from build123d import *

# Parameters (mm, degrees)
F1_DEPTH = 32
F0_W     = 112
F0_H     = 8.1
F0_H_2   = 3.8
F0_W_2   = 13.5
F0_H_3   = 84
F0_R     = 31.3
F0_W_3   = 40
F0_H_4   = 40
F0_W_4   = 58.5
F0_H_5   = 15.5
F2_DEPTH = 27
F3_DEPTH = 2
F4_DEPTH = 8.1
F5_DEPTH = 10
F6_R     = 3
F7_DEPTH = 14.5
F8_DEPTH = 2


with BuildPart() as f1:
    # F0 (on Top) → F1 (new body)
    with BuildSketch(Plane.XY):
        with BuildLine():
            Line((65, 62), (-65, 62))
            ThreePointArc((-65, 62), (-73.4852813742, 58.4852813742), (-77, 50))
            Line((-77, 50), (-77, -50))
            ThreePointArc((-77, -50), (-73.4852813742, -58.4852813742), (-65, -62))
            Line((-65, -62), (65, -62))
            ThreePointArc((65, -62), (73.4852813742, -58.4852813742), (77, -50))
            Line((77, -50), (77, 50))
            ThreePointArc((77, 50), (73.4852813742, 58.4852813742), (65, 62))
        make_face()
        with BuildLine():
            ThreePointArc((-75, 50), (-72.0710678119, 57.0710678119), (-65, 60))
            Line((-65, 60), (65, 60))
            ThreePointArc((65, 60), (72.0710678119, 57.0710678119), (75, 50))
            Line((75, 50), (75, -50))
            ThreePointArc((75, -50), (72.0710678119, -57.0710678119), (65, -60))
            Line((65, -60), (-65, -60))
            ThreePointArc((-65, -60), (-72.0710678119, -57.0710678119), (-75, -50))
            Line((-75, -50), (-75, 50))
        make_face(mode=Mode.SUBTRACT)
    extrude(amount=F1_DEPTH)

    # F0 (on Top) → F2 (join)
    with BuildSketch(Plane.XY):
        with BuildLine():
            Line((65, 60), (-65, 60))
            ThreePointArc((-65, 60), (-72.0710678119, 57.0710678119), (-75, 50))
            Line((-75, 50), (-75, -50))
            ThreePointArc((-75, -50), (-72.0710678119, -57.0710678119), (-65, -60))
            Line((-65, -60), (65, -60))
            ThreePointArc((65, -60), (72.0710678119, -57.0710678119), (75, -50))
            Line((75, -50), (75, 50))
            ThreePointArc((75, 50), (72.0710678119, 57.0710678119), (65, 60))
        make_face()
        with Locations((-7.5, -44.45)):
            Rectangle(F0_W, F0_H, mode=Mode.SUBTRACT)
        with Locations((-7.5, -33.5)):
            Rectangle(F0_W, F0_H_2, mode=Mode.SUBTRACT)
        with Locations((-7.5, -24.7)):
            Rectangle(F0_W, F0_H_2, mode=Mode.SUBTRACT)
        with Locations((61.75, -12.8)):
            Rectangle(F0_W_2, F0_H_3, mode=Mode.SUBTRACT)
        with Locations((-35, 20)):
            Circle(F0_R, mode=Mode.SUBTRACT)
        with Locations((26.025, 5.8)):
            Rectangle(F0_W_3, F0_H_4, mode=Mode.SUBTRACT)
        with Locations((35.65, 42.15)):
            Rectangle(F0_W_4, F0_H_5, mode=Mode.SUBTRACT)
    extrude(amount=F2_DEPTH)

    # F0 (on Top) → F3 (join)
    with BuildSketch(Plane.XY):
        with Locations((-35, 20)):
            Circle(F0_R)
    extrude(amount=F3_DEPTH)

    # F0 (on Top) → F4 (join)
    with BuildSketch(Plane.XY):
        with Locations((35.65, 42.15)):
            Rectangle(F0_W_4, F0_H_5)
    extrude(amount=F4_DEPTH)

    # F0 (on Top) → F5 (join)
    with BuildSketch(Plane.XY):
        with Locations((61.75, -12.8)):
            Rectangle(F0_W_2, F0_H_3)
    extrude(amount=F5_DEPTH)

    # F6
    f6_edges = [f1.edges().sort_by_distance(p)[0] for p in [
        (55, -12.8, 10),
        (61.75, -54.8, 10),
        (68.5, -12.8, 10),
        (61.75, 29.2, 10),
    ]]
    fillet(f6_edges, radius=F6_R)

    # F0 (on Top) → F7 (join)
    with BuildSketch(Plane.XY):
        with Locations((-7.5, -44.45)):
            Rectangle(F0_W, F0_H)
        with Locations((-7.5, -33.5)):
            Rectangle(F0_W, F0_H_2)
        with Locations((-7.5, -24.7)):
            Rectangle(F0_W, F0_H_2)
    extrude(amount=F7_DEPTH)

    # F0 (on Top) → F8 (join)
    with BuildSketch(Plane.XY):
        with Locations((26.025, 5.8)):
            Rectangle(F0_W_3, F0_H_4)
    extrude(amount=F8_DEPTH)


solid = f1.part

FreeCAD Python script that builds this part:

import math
import FreeCAD as App
import Part
import Sketcher
Q = App.Units.Quantity


def edges_at(feature, points):
    """Names of the edges that pass closest to the given points."""
    edges = feature.Shape.Edges
    near = lambda p: min(range(len(edges)), key=lambda i: edges[i].distToShape(Part.Vertex(*p))[0])
    return sorted({f"Edge{near(p) + 1}" for p in points})

doc = App.newDocument("Part")
body = doc.addObject("PartDesign::Body", "Body")

sketch1 = body.newObject("Sketcher::SketchObject", "Sketch")
sketch1.AttachmentSupport = (doc.getObject("XY_Plane"), [""])
sketch1.MapMode = "FlatFace"
sketch1.addGeometry([
    Part.LineSegment(App.Vector(65, 62, 0), App.Vector(-65, 62, 0)),
    Part.ArcOfCircle(Part.Circle(App.Vector(-65, 50, 0), App.Vector(0, 0, 1), 12), math.radians(90), math.radians(180)),
    Part.LineSegment(App.Vector(-77, 50, 0), App.Vector(-77, -50, 0)),
    Part.ArcOfCircle(Part.Circle(App.Vector(-65, -50, 0), App.Vector(0, 0, 1), 12), math.radians(180), math.radians(270)),
    Part.LineSegment(App.Vector(-65, -62, 0), App.Vector(65, -62, 0)),
    Part.ArcOfCircle(Part.Circle(App.Vector(65, -50, 0), App.Vector(0, 0, 1), 12), math.radians(-90), math.radians(0)),
    Part.LineSegment(App.Vector(77, -50, 0), App.Vector(77, 50, 0)),
    Part.ArcOfCircle(Part.Circle(App.Vector(65, 50, 0), App.Vector(0, 0, 1), 12), math.radians(0), math.radians(90)),
    Part.LineSegment(App.Vector(-75, -50, 0), App.Vector(-75, 50, 0)),
    Part.ArcOfCircle(Part.Circle(App.Vector(-65, 50, 0), App.Vector(0, 0, 1), 10), math.radians(90), math.radians(180)),
    Part.LineSegment(App.Vector(-65, 60, 0), App.Vector(65, 60, 0)),
    Part.ArcOfCircle(Part.Circle(App.Vector(65, 50, 0), App.Vector(0, 0, 1), 10), math.radians(0), math.radians(90)),
    Part.LineSegment(App.Vector(75, 50, 0), App.Vector(75, -50, 0)),
    Part.ArcOfCircle(Part.Circle(App.Vector(65, -50, 0), App.Vector(0, 0, 1), 10), math.radians(-90), math.radians(0)),
    Part.LineSegment(App.Vector(65, -60, 0), App.Vector(-65, -60, 0)),
    Part.ArcOfCircle(Part.Circle(App.Vector(-65, -50, 0), App.Vector(0, 0, 1), 10), math.radians(180), math.radians(270)),
], False)
sketch1.addConstraint([
    Sketcher.Constraint("Tangent", 0, 2, 1, 1),
    Sketcher.Constraint("Tangent", 1, 2, 2, 1),
    Sketcher.Constraint("Tangent", 2, 2, 3, 1),
    Sketcher.Constraint("Tangent", 3, 2, 4, 1),
    Sketcher.Constraint("Tangent", 4, 2, 5, 1),
    Sketcher.Constraint("Tangent", 5, 2, 6, 1),
    Sketcher.Constraint("Tangent", 6, 2, 7, 1),
    Sketcher.Constraint("Tangent", 7, 2, 0, 1),
    Sketcher.Constraint("Tangent", 8, 2, 9, 2),
    Sketcher.Constraint("Tangent", 9, 1, 10, 1),
    Sketcher.Constraint("Tangent", 10, 2, 11, 2),
    Sketcher.Constraint("Tangent", 11, 1, 12, 1),
    Sketcher.Constraint("Tangent", 12, 2, 13, 2),
    Sketcher.Constraint("Tangent", 13, 1, 14, 1),
    Sketcher.Constraint("Tangent", 14, 2, 15, 2),
    Sketcher.Constraint("Tangent", 15, 1, 8, 1),
    Sketcher.Constraint("Horizontal", 0),
    Sketcher.Constraint("Vertical", 2),
    Sketcher.Constraint("Horizontal", 4),
    Sketcher.Constraint("Vertical", 6),
    Sketcher.Constraint("Vertical", 8),
    Sketcher.Constraint("Horizontal", 10),
    Sketcher.Constraint("Vertical", 12),
    Sketcher.Constraint("Horizontal", 14),
    Sketcher.Constraint("Coincident", 9, 3, 1, 3),
    Sketcher.Constraint("Coincident", 11, 3, 7, 3),
    Sketcher.Constraint("Coincident", 13, 3, 5, 3),
    Sketcher.Constraint("Equal", 1, 3),
    Sketcher.Constraint("Equal", 3, 5),
    Sketcher.Constraint("Equal", 5, 7),
    Sketcher.Constraint("Equal", 13, 15),
    Sketcher.Constraint("Symmetric", 1, 3, 5, 3, -1, 1),
    Sketcher.Constraint("Radius", 1, Q("12 mm")),
    Sketcher.Constraint("Radius", 9, Q("10 mm")),
    Sketcher.Constraint("DistanceX", 0, 2, 0, 1, Q("130 mm")),
    Sketcher.Constraint("DistanceY", 2, 2, 2, 1, Q("100 mm")),
])
pad1 = body.newObject("PartDesign::Pad", "Pad")
pad1.Profile = sketch1
pad1.Length = 32

sketch2 = body.newObject("Sketcher::SketchObject", "Sketch001")
sketch2.AttachmentSupport = (doc.getObject("XY_Plane"), [""])
sketch2.MapMode = "FlatFace"
sketch2.addGeometry([
    Part.LineSegment(App.Vector(65, 60, 0), App.Vector(-65, 60, 0)),
    Part.ArcOfCircle(Part.Circle(App.Vector(-65, 50, 0), App.Vector(0, 0, 1), 10), math.radians(90), math.radians(180)),
    Part.LineSegment(App.Vector(-75, 50, 0), App.Vector(-75, -50, 0)),
    Part.ArcOfCircle(Part.Circle(App.Vector(-65, -50, 0), App.Vector(0, 0, 1), 10), math.radians(180), math.radians(270)),
    Part.LineSegment(App.Vector(-65, -60, 0), App.Vector(65, -60, 0)),
    Part.ArcOfCircle(Part.Circle(App.Vector(65, -50, 0), App.Vector(0, 0, 1), 10), math.radians(-90), math.radians(0)),
    Part.LineSegment(App.Vector(75, -50, 0), App.Vector(75, 50, 0)),
    Part.ArcOfCircle(Part.Circle(App.Vector(65, 50, 0), App.Vector(0, 0, 1), 10), math.radians(0), math.radians(90)),
    Part.LineSegment(App.Vector(48.5, -48.5, 0), App.Vector(-63.5, -48.5, 0)),
    Part.LineSegment(App.Vector(-63.5, -48.5, 0), App.Vector(-63.5, -40.4, 0)),
    Part.LineSegment(App.Vector(-63.5, -40.4, 0), App.Vector(48.5, -40.4, 0)),
    Part.LineSegment(App.Vector(48.5, -40.4, 0), App.Vector(48.5, -48.5, 0)),
    Part.LineSegment(App.Vector(48.5, -35.4, 0), App.Vector(-63.5, -35.4, 0)),
    Part.LineSegment(App.Vector(-63.5, -35.4, 0), App.Vector(-63.5, -31.6, 0)),
    Part.LineSegment(App.Vector(-63.5, -31.6, 0), App.Vector(48.5, -31.6, 0)),
    Part.LineSegment(App.Vector(48.5, -31.6, 0), App.Vector(48.5, -35.4, 0)),
    Part.LineSegment(App.Vector(48.5, -26.6, 0), App.Vector(-63.5, -26.6, 0)),
    Part.LineSegment(App.Vector(-63.5, -26.6, 0), App.Vector(-63.5, -22.8, 0)),
    Part.LineSegment(App.Vector(-63.5, -22.8, 0), App.Vector(48.5, -22.8, 0)),
    Part.LineSegment(App.Vector(48.5, -22.8, 0), App.Vector(48.5, -26.6, 0)),
    Part.LineSegment(App.Vector(68.5, -54.8, 0), App.Vector(55, -54.8, 0)),
    Part.LineSegment(App.Vector(55, -54.8, 0), App.Vector(55, 29.2, 0)),
    Part.LineSegment(App.Vector(55, 29.2, 0), App.Vector(68.5, 29.2, 0)),
    Part.LineSegment(App.Vector(68.5, 29.2, 0), App.Vector(68.5, -54.8, 0)),
    Part.Circle(App.Vector(-35, 20, 0), App.Vector(0, 0, 1), 31.3),
    Part.LineSegment(App.Vector(46.025, -14.2, 0), App.Vector(6.025, -14.2, 0)),
    Part.LineSegment(App.Vector(6.025, -14.2, 0), App.Vector(6.025, 25.8, 0)),
    Part.LineSegment(App.Vector(6.025, 25.8, 0), App.Vector(46.025, 25.8, 0)),
    Part.LineSegment(App.Vector(46.025, 25.8, 0), App.Vector(46.025, -14.2, 0)),
    Part.LineSegment(App.Vector(64.9, 34.4, 0), App.Vector(6.4, 34.4, 0)),
    Part.LineSegment(App.Vector(6.4, 34.4, 0), App.Vector(6.4, 49.9, 0)),
    Part.LineSegment(App.Vector(6.4, 49.9, 0), App.Vector(64.9, 49.9, 0)),
    Part.LineSegment(App.Vector(64.9, 49.9, 0), App.Vector(64.9, 34.4, 0)),
], False)
sketch2.addConstraint([
    Sketcher.Constraint("Tangent", 0, 2, 1, 1),
    Sketcher.Constraint("Tangent", 1, 2, 2, 1),
    Sketcher.Constraint("Tangent", 2, 2, 3, 1),
    Sketcher.Constraint("Tangent", 3, 2, 4, 1),
    Sketcher.Constraint("Tangent", 4, 2, 5, 1),
    Sketcher.Constraint("Tangent", 5, 2, 6, 1),
    Sketcher.Constraint("Tangent", 6, 2, 7, 1),
    Sketcher.Constraint("Tangent", 7, 2, 0, 1),
    Sketcher.Constraint("Coincident", 8, 2, 9, 1),
    Sketcher.Constraint("Coincident", 9, 2, 10, 1),
    Sketcher.Constraint("Coincident", 10, 2, 11, 1),
    Sketcher.Constraint("Coincident", 11, 2, 8, 1),
    Sketcher.Constraint("Coincident", 12, 2, 13, 1),
    Sketcher.Constraint("Coincident", 13, 2, 14, 1),
    Sketcher.Constraint("Coincident", 14, 2, 15, 1),
    Sketcher.Constraint("Coincident", 15, 2, 12, 1),
    Sketcher.Constraint("Coincident", 16, 2, 17, 1),
    Sketcher.Constraint("Coincident", 17, 2, 18, 1),
    Sketcher.Constraint("Coincident", 18, 2, 19, 1),
    Sketcher.Constraint("Coincident", 19, 2, 16, 1),
    Sketcher.Constraint("Coincident", 20, 2, 21, 1),
    Sketcher.Constraint("Coincident", 21, 2, 22, 1),
    Sketcher.Constraint("Coincident", 22, 2, 23, 1),
    Sketcher.Constraint("Coincident", 23, 2, 20, 1),
    Sketcher.Constraint("Coincident", 25, 2, 26, 1),
    Sketcher.Constraint("Coincident", 26, 2, 27, 1),
    Sketcher.Constraint("Coincident", 27, 2, 28, 1),
    Sketcher.Constraint("Coincident", 28, 2, 25, 1),
    Sketcher.Constraint("Coincident", 29, 2, 30, 1),
    Sketcher.Constraint("Coincident", 30, 2, 31, 1),
    Sketcher.Constraint("Coincident", 31, 2, 32, 1),
    Sketcher.Constraint("Coincident", 32, 2, 29, 1),
    Sketcher.Constraint("Horizontal", 0),
    Sketcher.Constraint("Vertical", 2),
    Sketcher.Constraint("Horizontal", 4),
    Sketcher.Constraint("Vertical", 6),
    Sketcher.Constraint("Horizontal", 8),
    Sketcher.Constraint("Vertical", 9),
    Sketcher.Constraint("Horizontal", 10),
    Sketcher.Constraint("Vertical", 11),
    Sketcher.Constraint("Horizontal", 12),
    Sketcher.Constraint("Vertical", 13),
    Sketcher.Constraint("Horizontal", 14),
    Sketcher.Constraint("Vertical", 15),
    Sketcher.Constraint("Horizontal", 16),
    Sketcher.Constraint("Vertical", 17),
    Sketcher.Constraint("Horizontal", 18),
    Sketcher.Constraint("Vertical", 19),
    Sketcher.Constraint("Horizontal", 20),
    Sketcher.Constraint("Vertical", 21),
    Sketcher.Constraint("Horizontal", 22),
    Sketcher.Constraint("Vertical", 23),
    Sketcher.Constraint("Horizontal", 25),
    Sketcher.Constraint("Vertical", 26),
    Sketcher.Constraint("Horizontal", 27),
    Sketcher.Constraint("Vertical", 28),
    Sketcher.Constraint("Horizontal", 29),
    Sketcher.Constraint("Vertical", 30),
    Sketcher.Constraint("Horizontal", 31),
    Sketcher.Constraint("Vertical", 32),
    Sketcher.Constraint("Equal", 1, 3),
    Sketcher.Constraint("Equal", 3, 5),
    Sketcher.Constraint("Equal", 5, 7),
    Sketcher.Constraint("Symmetric", 1, 3, 5, 3, -1, 1),
    Sketcher.Constraint("Vertical", 9, 2, 12, 2),
    Sketcher.Constraint("Vertical", 11, 2, 14, 2),
    Sketcher.Constraint("Vertical", 13, 2, 16, 2),
    Sketcher.Constraint("Vertical", 15, 2, 18, 2),
    Sketcher.Constraint("Equal", 15, 17),
    Sketcher.Constraint("Equal", 27, 26),
    Sketcher.Constraint("Radius", 1, Q("10 mm")),
    Sketcher.Constraint("Diameter", 24, Q("62.6 mm")),
    Sketcher.Constraint("DistanceX", 0, 2, 0, 1, Q("130 mm")),
    Sketcher.Constraint("DistanceX", 8, 2, 8, 1, Q("112 mm")),
    Sketcher.Constraint("DistanceX", 25, 2, 25, 1, Q("40 mm")),
    Sketcher.Constraint("DistanceY", 2, 2, 2, 1, Q("100 mm")),
    Sketcher.Constraint("DistanceY", 21, 1, 21, 2, Q("84 mm")),
    Sketcher.Constraint("DistanceX", 20, 2, 20, 1, Q("13.5 mm")),
    Sketcher.Constraint("DistanceX", 29, 2, 29, 1, Q("58.5 mm")),
    Sketcher.Constraint("DistanceY", 9, 1, 9, 2, Q("8.1 mm")),
    Sketcher.Constraint("DistanceY", 13, 1, 13, 2, Q("3.8 mm")),
    Sketcher.Constraint("DistanceY", 30, 1, 30, 2, Q("15.5 mm")),
    Sketcher.Constraint("DistanceX", 24, 3, -1, 1, Q("35 mm")),
    Sketcher.Constraint("DistanceY", -1, 1, 24, 3, Q("20 mm")),
    Sketcher.Constraint("DistanceX", -1, 1, 20, 2, Q("55 mm")),
    Sketcher.Constraint("DistanceY", 9, 2, 12, 2, Q("5 mm")),
    Sketcher.Constraint("DistanceY", 13, 2, 16, 2, Q("5 mm")),
    Sketcher.Constraint("DistanceY", 18, 2, 21, 2, Q("52 mm")),
    Sketcher.Constraint("DistanceX", 18, 2, 22, 2, Q("20 mm")),
    Sketcher.Constraint("DistanceY", 8, 2, -1, 1, Q("48.5 mm")),
    Sketcher.Constraint("DistanceY", 25, 2, -1, 1, Q("14.2 mm")),
    Sketcher.Constraint("DistanceX", -1, 1, 29, 2, Q("6.4 mm")),
    Sketcher.Constraint("DistanceY", -1, 1, 29, 2, Q("34.4 mm")),
    Sketcher.Constraint("DistanceX", -1, 1, 25, 2, Q("6.025 mm")),
])
pad2 = body.newObject("PartDesign::Pad", "Pad001")
pad2.Profile = sketch2
pad2.Length = 27

sketch3 = body.newObject("Sketcher::SketchObject", "Sketch002")
sketch3.AttachmentSupport = (doc.getObject("XY_Plane"), [""])
sketch3.MapMode = "FlatFace"
sketch3.addGeometry(Part.Circle(App.Vector(-35, 20, 0), App.Vector(0, 0, 1), 31.3), False)
sketch3.addConstraint([
    Sketcher.Constraint("Diameter", 0, Q("62.6 mm")),
    Sketcher.Constraint("DistanceX", 0, 3, -1, 1, Q("35 mm")),
    Sketcher.Constraint("DistanceY", -1, 1, 0, 3, Q("20 mm")),
])
pad3 = body.newObject("PartDesign::Pad", "Pad002")
pad3.Profile = sketch3
pad3.Length = 2

sketch4 = body.newObject("Sketcher::SketchObject", "Sketch003")
sketch4.AttachmentSupport = (doc.getObject("XY_Plane"), [""])
sketch4.MapMode = "FlatFace"
sketch4.addGeometry([
    Part.LineSegment(App.Vector(6.4, 49.9, 0), App.Vector(6.4, 34.4, 0)),
    Part.LineSegment(App.Vector(6.4, 34.4, 0), App.Vector(64.9, 34.4, 0)),
    Part.LineSegment(App.Vector(64.9, 34.4, 0), App.Vector(64.9, 49.9, 0)),
    Part.LineSegment(App.Vector(64.9, 49.9, 0), App.Vector(6.4, 49.9, 0)),
], False)
sketch4.addConstraint([
    Sketcher.Constraint("Coincident", 0, 2, 1, 1),
    Sketcher.Constraint("Coincident", 1, 2, 2, 1),
    Sketcher.Constraint("Coincident", 2, 2, 3, 1),
    Sketcher.Constraint("Coincident", 3, 2, 0, 1),
    Sketcher.Constraint("Vertical", 0),
    Sketcher.Constraint("Horizontal", 1),
    Sketcher.Constraint("Vertical", 2),
    Sketcher.Constraint("Horizontal", 3),
    Sketcher.Constraint("DistanceX", 1, 1, 1, 2, Q("58.5 mm")),
    Sketcher.Constraint("DistanceY", 0, 2, 0, 1, Q("15.5 mm")),
    Sketcher.Constraint("DistanceX", -1, 1, 0, 2, Q("6.4 mm")),
    Sketcher.Constraint("DistanceY", -1, 1, 0, 2, Q("34.4 mm")),
])
pad4 = body.newObject("PartDesign::Pad", "Pad003")
pad4.Profile = sketch4
pad4.Length = 8.1

sketch5 = body.newObject("Sketcher::SketchObject", "Sketch004")
sketch5.AttachmentSupport = (doc.getObject("XY_Plane"), [""])
sketch5.MapMode = "FlatFace"
sketch5.addGeometry([
    Part.LineSegment(App.Vector(55, 29.2, 0), App.Vector(55, -54.8, 0)),
    Part.LineSegment(App.Vector(55, -54.8, 0), App.Vector(68.5, -54.8, 0)),
    Part.LineSegment(App.Vector(68.5, -54.8, 0), App.Vector(68.5, 29.2, 0)),
    Part.LineSegment(App.Vector(68.5, 29.2, 0), App.Vector(55, 29.2, 0)),
], False)
sketch5.addConstraint([
    Sketcher.Constraint("Coincident", 0, 2, 1, 1),
    Sketcher.Constraint("Coincident", 1, 2, 2, 1),
    Sketcher.Constraint("Coincident", 2, 2, 3, 1),
    Sketcher.Constraint("Coincident", 3, 2, 0, 1),
    Sketcher.Constraint("Vertical", 0),
    Sketcher.Constraint("Horizontal", 1),
    Sketcher.Constraint("Vertical", 2),
    Sketcher.Constraint("Horizontal", 3),
    Sketcher.Constraint("DistanceY", 0, 2, 0, 1, Q("84 mm")),
    Sketcher.Constraint("DistanceX", 1, 1, 1, 2, Q("13.5 mm")),
    Sketcher.Constraint("DistanceX", -1, 1, 0, 2, Q("55 mm")),
    Sketcher.Constraint("DistanceY", 0, 2, -1, 1, Q("54.8 mm")),
])
pad5 = body.newObject("PartDesign::Pad", "Pad004")
pad5.Profile = sketch5
pad5.Length = 10
doc.recompute()

fillet = body.newObject("PartDesign::Fillet", "Fillet")
fillet.Base = (pad5, edges_at(pad5, [
    (55, -12.8, 10),
    (61.75, -54.8, 10),
    (68.5, -12.8, 10),
    (61.75, 29.2, 10),
]))
fillet.Radius = 3

sketch6 = body.newObject("Sketcher::SketchObject", "Sketch005")
sketch6.AttachmentSupport = (doc.getObject("XY_Plane"), [""])
sketch6.MapMode = "FlatFace"
sketch6.addGeometry([
    Part.LineSegment(App.Vector(-63.5, -40.4, 0), App.Vector(-63.5, -48.5, 0)),
    Part.LineSegment(App.Vector(-63.5, -48.5, 0), App.Vector(48.5, -48.5, 0)),
    Part.LineSegment(App.Vector(48.5, -48.5, 0), App.Vector(48.5, -40.4, 0)),
    Part.LineSegment(App.Vector(48.5, -40.4, 0), App.Vector(-63.5, -40.4, 0)),
    Part.LineSegment(App.Vector(-63.5, -31.6, 0), App.Vector(-63.5, -35.4, 0)),
    Part.LineSegment(App.Vector(-63.5, -35.4, 0), App.Vector(48.5, -35.4, 0)),
    Part.LineSegment(App.Vector(48.5, -35.4, 0), App.Vector(48.5, -31.6, 0)),
    Part.LineSegment(App.Vector(48.5, -31.6, 0), App.Vector(-63.5, -31.6, 0)),
    Part.LineSegment(App.Vector(-63.5, -22.8, 0), App.Vector(-63.5, -26.6, 0)),
    Part.LineSegment(App.Vector(-63.5, -26.6, 0), App.Vector(48.5, -26.6, 0)),
    Part.LineSegment(App.Vector(48.5, -26.6, 0), App.Vector(48.5, -22.8, 0)),
    Part.LineSegment(App.Vector(48.5, -22.8, 0), App.Vector(-63.5, -22.8, 0)),
], False)
sketch6.addConstraint([
    Sketcher.Constraint("Coincident", 0, 2, 1, 1),
    Sketcher.Constraint("Coincident", 1, 2, 2, 1),
    Sketcher.Constraint("Coincident", 2, 2, 3, 1),
    Sketcher.Constraint("Coincident", 3, 2, 0, 1),
    Sketcher.Constraint("Coincident", 4, 2, 5, 1),
    Sketcher.Constraint("Coincident", 5, 2, 6, 1),
    Sketcher.Constraint("Coincident", 6, 2, 7, 1),
    Sketcher.Constraint("Coincident", 7, 2, 4, 1),
    Sketcher.Constraint("Coincident", 8, 2, 9, 1),
    Sketcher.Constraint("Coincident", 9, 2, 10, 1),
    Sketcher.Constraint("Coincident", 10, 2, 11, 1),
    Sketcher.Constraint("Coincident", 11, 2, 8, 1),
    Sketcher.Constraint("Vertical", 0),
    Sketcher.Constraint("Horizontal", 1),
    Sketcher.Constraint("Vertical", 2),
    Sketcher.Constraint("Horizontal", 3),
    Sketcher.Constraint("Vertical", 4),
    Sketcher.Constraint("Horizontal", 5),
    Sketcher.Constraint("Vertical", 6),
    Sketcher.Constraint("Horizontal", 7),
    Sketcher.Constraint("Vertical", 8),
    Sketcher.Constraint("Horizontal", 9),
    Sketcher.Constraint("Vertical", 10),
    Sketcher.Constraint("Horizontal", 11),
    Sketcher.Constraint("Vertical", 3, 2, 4, 2),
    Sketcher.Constraint("Vertical", 2, 2, 5, 2),
    Sketcher.Constraint("Vertical", 7, 2, 8, 2),
    Sketcher.Constraint("Vertical", 6, 2, 9, 2),
    Sketcher.Constraint("Equal", 6, 8),
    Sketcher.Constraint("DistanceX", 1, 1, 1, 2, Q("112 mm")),
    Sketcher.Constraint("DistanceY", 0, 2, 0, 1, Q("8.1 mm")),
    Sketcher.Constraint("DistanceY", 4, 2, 4, 1, Q("3.8 mm")),
    Sketcher.Constraint("DistanceY", 3, 2, 4, 2, Q("5 mm")),
    Sketcher.Constraint("DistanceY", 7, 2, 8, 2, Q("5 mm")),
    Sketcher.Constraint("DistanceX", 0, 2, -1, 1, Q("63.5 mm")),
    Sketcher.Constraint("DistanceY", 0, 2, -1, 1, Q("48.5 mm")),
])
pad6 = body.newObject("PartDesign::Pad", "Pad005")
pad6.Profile = sketch6
pad6.Length = 14.5

sketch7 = body.newObject("Sketcher::SketchObject", "Sketch006")
sketch7.AttachmentSupport = (doc.getObject("XY_Plane"), [""])
sketch7.MapMode = "FlatFace"
sketch7.addGeometry([
    Part.LineSegment(App.Vector(6.025, 25.8, 0), App.Vector(6.025, -14.2, 0)),
    Part.LineSegment(App.Vector(6.025, -14.2, 0), App.Vector(46.025, -14.2, 0)),
    Part.LineSegment(App.Vector(46.025, -14.2, 0), App.Vector(46.025, 25.8, 0)),
    Part.LineSegment(App.Vector(46.025, 25.8, 0), App.Vector(6.025, 25.8, 0)),
], False)
sketch7.addConstraint([
    Sketcher.Constraint("Coincident", 0, 2, 1, 1),
    Sketcher.Constraint("Coincident", 1, 2, 2, 1),
    Sketcher.Constraint("Coincident", 2, 2, 3, 1),
    Sketcher.Constraint("Coincident", 3, 2, 0, 1),
    Sketcher.Constraint("Vertical", 0),
    Sketcher.Constraint("Horizontal", 1),
    Sketcher.Constraint("Vertical", 2),
    Sketcher.Constraint("Horizontal", 3),
    Sketcher.Constraint("Equal", 3, 0),
    Sketcher.Constraint("DistanceX", 1, 1, 1, 2, Q("40 mm")),
    Sketcher.Constraint("DistanceY", 0, 2, -1, 1, Q("14.2 mm")),
    Sketcher.Constraint("DistanceX", -1, 1, 0, 2, Q("6.025 mm")),
])
pad7 = body.newObject("PartDesign::Pad", "Pad006")
pad7.Profile = sketch7
pad7.Length = 2

doc.recompute()
